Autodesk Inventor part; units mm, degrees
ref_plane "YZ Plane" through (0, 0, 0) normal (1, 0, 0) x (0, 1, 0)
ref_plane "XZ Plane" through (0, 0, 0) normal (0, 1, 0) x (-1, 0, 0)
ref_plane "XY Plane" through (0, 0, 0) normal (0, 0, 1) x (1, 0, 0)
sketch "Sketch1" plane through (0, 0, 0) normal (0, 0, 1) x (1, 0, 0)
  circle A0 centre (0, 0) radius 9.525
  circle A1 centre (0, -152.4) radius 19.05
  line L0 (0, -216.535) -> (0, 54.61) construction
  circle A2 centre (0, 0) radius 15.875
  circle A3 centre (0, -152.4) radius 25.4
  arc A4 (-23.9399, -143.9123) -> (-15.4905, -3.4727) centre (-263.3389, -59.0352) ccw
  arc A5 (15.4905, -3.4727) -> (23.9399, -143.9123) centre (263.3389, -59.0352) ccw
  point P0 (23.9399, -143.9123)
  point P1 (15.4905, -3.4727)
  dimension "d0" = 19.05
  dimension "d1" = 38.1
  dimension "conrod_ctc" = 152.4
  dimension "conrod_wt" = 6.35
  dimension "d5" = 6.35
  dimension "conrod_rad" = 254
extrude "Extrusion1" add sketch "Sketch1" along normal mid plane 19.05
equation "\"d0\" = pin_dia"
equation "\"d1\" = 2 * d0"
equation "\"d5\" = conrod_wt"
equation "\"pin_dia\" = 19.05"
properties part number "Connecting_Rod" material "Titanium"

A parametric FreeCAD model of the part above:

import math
import FreeCAD as App
import Part
import Sketcher
from FreeCAD import Vector
Q = App.Units.Quantity

doc = App.newDocument("Part")
params = doc.addObject("Spreadsheet::Sheet", "Params")
for row, (alias, value) in enumerate([
    ("sketch1_radius", "10 in"),
    ("sketch1_diameter", "1.5 in"),
    ("sketch1_diameter2", "0.75 in"),
    ("sketch1_radius2", "1 in"),
    ("sketch1_radius3", "0.625 in"),
    ("pad1_length", "0.75 in"),
], start=1):
    params.set(f"A{row}", alias)
    params.set(f"B{row}", "=" + value)
    params.setAlias(f"B{row}", alias)

body = doc.addObject("PartDesign::Body", "Body")

# Sketch on XY plane
sketch1 = body.newObject("Sketcher::SketchObject", "Sketch")
sketch1.AttachmentSupport = (doc.getObject("XY_Plane"), [""])
sketch1.MapMode = "FlatFace"
sketch1.addGeometry([
    Part.ArcOfCircle(Part.Circle(Vector(0, 0, 0), Vector(0, 0, 1), 16), math.radians(-13), math.radians(193)),  # 0
    Part.ArcOfCircle(Part.Circle(Vector(-263, -59, 0), Vector(0, 0, 1), 254), math.radians(-20), math.radians(13)),  # 1
    Part.ArcOfCircle(Part.Circle(Vector(0, -152, 0), Vector(0, 0, 1), 25), math.radians(160), math.radians(380)),  # 2
    Part.ArcOfCircle(Part.Circle(Vector(263, -59, 0), Vector(0, 0, 1), 254), math.radians(167), math.radians(200)),  # 3
    Part.Circle(Vector(0, 0, 0), Vector(0, 0, 1), 10),  # 4
    Part.Circle(Vector(0, -152, 0), Vector(0, 0, 1), 19),  # 5
], False)
sketch1.addConstraint([
    Sketcher.Constraint("Tangent", 0, 2, 1, 2),
    Sketcher.Constraint("Tangent", 1, 1, 2, 1),
    Sketcher.Constraint("Tangent", 2, 2, 3, 2),
    Sketcher.Constraint("Tangent", 3, 1, 0, 1),
    Sketcher.Constraint("Coincident", 0, 3, -1, 1),
    Sketcher.Constraint("Coincident", 4, 3, -1, 1),
    Sketcher.Constraint("Coincident", 5, 3, 2, 3),
    Sketcher.Constraint("Equal", 1, 3),
    Sketcher.Constraint("PointOnObject", 2, 3, -2),
    Sketcher.Constraint("Radius", 1, Q("10 in")),
    Sketcher.Constraint("Diameter", 5, Q("1.5 in")),
    Sketcher.Constraint("Diameter", 4, Q("0.75 in")),
    Sketcher.Constraint("DistanceY", 2, 3, -1, 1, Q("6 in")),
    Sketcher.Constraint("Radius", 2, Q("1 in")),
    Sketcher.Constraint("Radius", 0, Q("0.625 in")),
])
sketch1.setExpression("Constraints[9]", "Params.sketch1_radius")
sketch1.setExpression("Constraints[10]", "Params.sketch1_diameter")
sketch1.setExpression("Constraints[11]", "Params.sketch1_diameter2")
sketch1.setExpression("Constraints[13]", "Params.sketch1_radius2")
sketch1.setExpression("Constraints[14]", "Params.sketch1_radius3")
pad1 = body.newObject("PartDesign::Pad", "Pad")
pad1.Profile = sketch1
pad1.setExpression("Length", "Params.pad1_length")
pad1.Midplane = True

doc.recompute()
